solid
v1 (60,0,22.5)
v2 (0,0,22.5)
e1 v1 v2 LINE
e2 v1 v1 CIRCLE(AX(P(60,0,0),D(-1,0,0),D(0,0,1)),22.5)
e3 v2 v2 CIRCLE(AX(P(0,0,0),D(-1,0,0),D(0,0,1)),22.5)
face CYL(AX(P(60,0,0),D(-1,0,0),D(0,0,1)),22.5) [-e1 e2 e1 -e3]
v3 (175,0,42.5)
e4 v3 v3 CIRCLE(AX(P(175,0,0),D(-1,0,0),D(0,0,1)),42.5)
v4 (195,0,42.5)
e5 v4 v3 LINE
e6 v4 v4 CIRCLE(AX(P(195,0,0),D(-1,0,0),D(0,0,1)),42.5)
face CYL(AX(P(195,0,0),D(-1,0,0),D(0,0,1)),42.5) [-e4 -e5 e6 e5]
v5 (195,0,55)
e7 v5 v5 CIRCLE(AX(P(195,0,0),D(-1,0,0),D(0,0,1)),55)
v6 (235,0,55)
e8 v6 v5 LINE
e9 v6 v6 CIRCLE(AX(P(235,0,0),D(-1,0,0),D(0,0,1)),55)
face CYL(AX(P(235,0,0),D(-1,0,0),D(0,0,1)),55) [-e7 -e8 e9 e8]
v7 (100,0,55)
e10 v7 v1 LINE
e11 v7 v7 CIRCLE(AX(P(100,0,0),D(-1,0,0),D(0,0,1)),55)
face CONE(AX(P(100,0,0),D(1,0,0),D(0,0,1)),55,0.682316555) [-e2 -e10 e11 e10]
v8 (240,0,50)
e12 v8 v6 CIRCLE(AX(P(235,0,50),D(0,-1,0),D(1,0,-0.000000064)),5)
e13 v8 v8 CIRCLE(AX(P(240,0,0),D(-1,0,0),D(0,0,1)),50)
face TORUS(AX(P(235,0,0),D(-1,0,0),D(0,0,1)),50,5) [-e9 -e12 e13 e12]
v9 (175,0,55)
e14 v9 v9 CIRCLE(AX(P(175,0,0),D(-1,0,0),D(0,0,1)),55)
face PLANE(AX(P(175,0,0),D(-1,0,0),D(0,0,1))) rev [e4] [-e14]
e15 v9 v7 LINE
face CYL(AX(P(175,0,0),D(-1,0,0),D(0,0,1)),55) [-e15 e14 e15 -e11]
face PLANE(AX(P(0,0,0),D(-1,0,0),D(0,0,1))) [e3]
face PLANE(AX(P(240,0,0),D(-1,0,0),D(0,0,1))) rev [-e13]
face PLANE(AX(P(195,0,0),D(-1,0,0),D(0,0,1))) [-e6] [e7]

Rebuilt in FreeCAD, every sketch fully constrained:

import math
import FreeCAD as App
import Part
import Sketcher

doc = App.newDocument("Part")
body = doc.addObject("PartDesign::Body", "Body")

# Sketch on XZ plane
sketch1 = doc.addObject("Sketcher::SketchObject", "Sketch")
body.addObject(sketch1)
sketch1.AttachmentSupport = (doc.XZ_Plane, [""])
sketch1.MapMode = "FlatFace"
sketch1.addGeometry([
    Part.LineSegment(App.Vector(0, 22.5, 0), App.Vector(0, 0, 0)),  # 0
    Part.LineSegment(App.Vector(0, 0, 0), App.Vector(240, 0, 0)),  # 1
    Part.LineSegment(App.Vector(240, 0, 0), App.Vector(240, 50, 0)),  # 2
    Part.ArcOfCircle(Part.Circle(App.Vector(235, 50, 0), App.Vector(0, 0, 1), 5), math.radians(0), math.radians(90)),  # 3
    Part.LineSegment(App.Vector(235, 55, 0), App.Vector(195, 55, 0)),  # 4
    Part.LineSegment(App.Vector(195, 55, 0), App.Vector(195, 42.5, 0)),  # 5
    Part.LineSegment(App.Vector(195, 42.5, 0), App.Vector(175, 42.5, 0)),  # 6
    Part.LineSegment(App.Vector(175, 42.5, 0), App.Vector(175, 55, 0)),  # 7
    Part.LineSegment(App.Vector(175, 55, 0), App.Vector(100, 55, 0)),  # 8
    Part.LineSegment(App.Vector(100, 55, 0), App.Vector(60, 22.5, 0)),  # 9
    Part.LineSegment(App.Vector(60, 22.5, 0), App.Vector(0, 22.5, 0)),  # 10
], False)
sketch1.addConstraint([
    Sketcher.Constraint("Coincident", 0, 2, 1, 1),
    Sketcher.Constraint("Coincident", 1, 2, 2, 1),
    Sketcher.Constraint("Tangent", 2, 2, 3, 1),
    Sketcher.Constraint("Tangent", 3, 2, 4, 1),
    Sketcher.Constraint("Coincident", 4, 2, 5, 1),
    Sketcher.Constraint("Coincident", 5, 2, 6, 1),
    Sketcher.Constraint("Coincident", 6, 2, 7, 1),
    Sketcher.Constraint("Coincident", 7, 2, 8, 1),
    Sketcher.Constraint("Coincident", 8, 2, 9, 1),
    Sketcher.Constraint("Coincident", 9, 2, 10, 1),
    Sketcher.Constraint("Coincident", 10, 2, 0, 1),
    Sketcher.Constraint("Vertical", 0),
    Sketcher.Constraint("Horizontal", 1),
    Sketcher.Constraint("Vertical", 2),
    Sketcher.Constraint("Horizontal", 4),
    Sketcher.Constraint("Vertical", 5),
    Sketcher.Constraint("Horizontal", 6),
    Sketcher.Constraint("Vertical", 7),
    Sketcher.Constraint("Horizontal", 8),
    Sketcher.Constraint("Horizontal", 10),
    Sketcher.Constraint("Coincident", 0, 2, -1, 1),
    Sketcher.Constraint("Horizontal", 4, 2, 7, 2),
    Sketcher.Constraint("Radius", 3, 5.0),
    Sketcher.Constraint("DistanceX", 1, 1, 1, 2, 240.0),
    Sketcher.Constraint("DistanceX", 4, 2, 4, 1, 40.0),
    Sketcher.Constraint("DistanceX", 6, 2, 6, 1, 20.0),
    Sketcher.Constraint("DistanceX", 8, 2, 8, 1, 75.0),
    Sketcher.Constraint("DistanceX", 10, 2, 10, 1, 60.0),
    Sketcher.Constraint("DistanceY", 2, 1, 2, 2, 50.0),
    Sketcher.Constraint("DistanceY", 0, 2, 0, 1, 22.5),
    Sketcher.Constraint("DistanceY", 5, 2, 5, 1, 12.5),
])
revolution = doc.addObject("PartDesign::Revolution", "Revolution")
body.addObject(revolution)
revolution.Profile = sketch1
revolution.ReferenceAxis = (sketch1, ["H_Axis"])
revolution.Angle = 360

doc.recompute()
